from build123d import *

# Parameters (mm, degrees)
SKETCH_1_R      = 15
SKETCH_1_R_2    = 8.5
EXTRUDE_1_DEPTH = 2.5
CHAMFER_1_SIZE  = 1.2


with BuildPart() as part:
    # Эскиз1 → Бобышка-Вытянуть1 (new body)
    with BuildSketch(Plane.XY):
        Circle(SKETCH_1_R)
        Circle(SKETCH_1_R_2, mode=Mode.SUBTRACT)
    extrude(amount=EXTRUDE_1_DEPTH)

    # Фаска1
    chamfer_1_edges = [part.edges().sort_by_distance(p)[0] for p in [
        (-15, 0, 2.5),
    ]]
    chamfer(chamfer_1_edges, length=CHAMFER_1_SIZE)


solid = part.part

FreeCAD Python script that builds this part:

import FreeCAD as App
import Part
import Sketcher

V = App.Vector


def edges_at(feature, points):
    """Names of the edges that pass closest to the given points."""
    edges = feature.Shape.Edges
    near = lambda p: min(range(len(edges)), key=lambda i: edges[i].distToShape(Part.Vertex(*p))[0])
    return sorted({f"Edge{near(p) + 1}" for p in points})

doc = App.newDocument("Part")
body = doc.addObject("PartDesign::Body", "Body")

sketch1 = body.newObject("Sketcher::SketchObject", "Sketch")
sketch1.AttachmentSupport = (doc.getObject("XY_Plane"), [""])
sketch1.MapMode = "FlatFace"
sketch1.addGeometry([
    Part.Circle(V(0, 0, 0), V(0, 0, 1), 15),
    Part.Circle(V(0, 0, 0), V(0, 0, 1), 8),
], False)
sketch1.addConstraint([
    Sketcher.Constraint("Coincident", 0, 3, -1, 1),
    Sketcher.Constraint("Coincident", 1, 3, -1, 1),
    Sketcher.Constraint("Diameter", 0, 30.0),
    Sketcher.Constraint("Diameter", 1, 17.0),
])
pad1 = body.newObject("PartDesign::Pad", "Pad")
pad1.Profile = sketch1
pad1.Length = 2.5
doc.recompute()

chamfer = body.newObject("PartDesign::Chamfer", "Chamfer")
chamfer.Base = (pad1, edges_at(pad1, [(-15, 0, 2.5)]))
chamfer.Size = 1.2

doc.recompute()
